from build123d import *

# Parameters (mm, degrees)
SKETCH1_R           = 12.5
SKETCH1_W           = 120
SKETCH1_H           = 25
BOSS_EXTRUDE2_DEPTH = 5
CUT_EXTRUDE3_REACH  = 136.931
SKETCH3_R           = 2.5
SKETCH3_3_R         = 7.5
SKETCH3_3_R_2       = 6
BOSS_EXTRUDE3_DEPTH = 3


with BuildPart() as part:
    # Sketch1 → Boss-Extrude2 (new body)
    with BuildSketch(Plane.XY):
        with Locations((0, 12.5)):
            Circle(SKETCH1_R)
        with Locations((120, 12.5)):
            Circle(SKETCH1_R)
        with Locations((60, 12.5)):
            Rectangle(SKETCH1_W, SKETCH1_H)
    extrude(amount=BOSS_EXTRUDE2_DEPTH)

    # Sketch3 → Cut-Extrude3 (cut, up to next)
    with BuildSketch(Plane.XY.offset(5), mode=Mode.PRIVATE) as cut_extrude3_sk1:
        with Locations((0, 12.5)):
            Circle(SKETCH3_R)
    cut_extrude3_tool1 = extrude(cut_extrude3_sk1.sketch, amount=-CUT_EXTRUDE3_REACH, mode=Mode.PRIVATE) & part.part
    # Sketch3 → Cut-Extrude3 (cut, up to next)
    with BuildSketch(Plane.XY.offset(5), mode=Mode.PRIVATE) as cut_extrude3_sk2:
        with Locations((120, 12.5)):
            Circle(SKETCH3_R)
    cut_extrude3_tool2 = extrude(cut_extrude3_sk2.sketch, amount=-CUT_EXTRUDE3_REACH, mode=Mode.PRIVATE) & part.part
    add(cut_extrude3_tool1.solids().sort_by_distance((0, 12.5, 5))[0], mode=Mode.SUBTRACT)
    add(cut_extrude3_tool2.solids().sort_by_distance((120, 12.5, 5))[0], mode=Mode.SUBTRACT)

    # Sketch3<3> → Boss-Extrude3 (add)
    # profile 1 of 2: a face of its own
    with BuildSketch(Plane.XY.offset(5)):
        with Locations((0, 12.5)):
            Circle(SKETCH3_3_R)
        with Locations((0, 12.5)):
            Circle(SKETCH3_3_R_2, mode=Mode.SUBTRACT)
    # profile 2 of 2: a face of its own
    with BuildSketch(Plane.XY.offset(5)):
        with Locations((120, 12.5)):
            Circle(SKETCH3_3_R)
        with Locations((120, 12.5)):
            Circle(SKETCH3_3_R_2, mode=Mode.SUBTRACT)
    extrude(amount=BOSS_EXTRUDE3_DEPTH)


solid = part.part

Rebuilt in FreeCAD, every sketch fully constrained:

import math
import FreeCAD as App
import Part
import Sketcher

V = App.Vector

doc = App.newDocument("Part")
params = doc.addObject("Spreadsheet::Sheet", "Params")
for row, (alias, value) in enumerate([
    ("sketch1_radius", "12.5 mm"),
    ("sketch1_width", "120 mm"),
    ("pad1_length", "5 mm"),
    ("sketch2_diameter", "5 mm"),
    ("sketch3_diameter", "5 mm"),
    ("sketch4_diameter", "15 mm"),
    ("sketch4_diameter2", "12 mm"),
    ("pad2_length", "3 mm"),
], start=1):
    params.set(f"A{row}", alias)
    params.set(f"B{row}", "=" + value)
    params.setAlias(f"B{row}", alias)

body = doc.addObject("PartDesign::Body", "Body")

# Sketch on XY plane
sketch1 = doc.addObject("Sketcher::SketchObject", "Sketch")
body.addObject(sketch1)
sketch1.AttachmentSupport = (doc.XY_Plane, [""])
sketch1.MapMode = "FlatFace"
sketch1.addGeometry([
    Part.LineSegment(V(0, 0, 0), V(120, 0, 0)),
    Part.ArcOfCircle(Part.Circle(V(120, 12, 0), V(0, 0, 1), 12), math.radians(-90), math.radians(90)),
    Part.LineSegment(V(120, 25, 0), V(0, 25, 0)),
    Part.ArcOfCircle(Part.Circle(V(0, 12, 0), V(0, 0, 1), 12), math.radians(90), math.radians(270)),
], False)
sketch1.addConstraint([
    Sketcher.Constraint("Tangent", 0, 2, 1, 1),
    Sketcher.Constraint("Tangent", 1, 2, 2, 1),
    Sketcher.Constraint("Tangent", 2, 2, 3, 1),
    Sketcher.Constraint("Tangent", 3, 2, 0, 1),
    Sketcher.Constraint("Horizontal", 0),
    Sketcher.Constraint("Horizontal", 2),
    Sketcher.Constraint("Coincident", 3, 2, -1, 1),
    Sketcher.Constraint("Radius", 1, 12.5),
    Sketcher.Constraint("DistanceX", 0, 1, 0, 2, 120.0),
])
sketch1.setExpression("Constraints[7]", "Params.sketch1_radius")
sketch1.setExpression("Constraints[8]", "Params.sketch1_width")
pad1 = doc.addObject("PartDesign::Pad", "Pad")
body.addObject(pad1)
pad1.Profile = sketch1
pad1.setExpression("Length", "Params.pad1_length")

# Sketch on XY plane
sketch2 = doc.addObject("Sketcher::SketchObject", "Sketch001")
body.addObject(sketch2)
sketch2.AttachmentSupport = (doc.XY_Plane, [""])
sketch2.MapMode = "FlatFace"
sketch2.AttachmentOffset = App.Placement(V(0, 0, 5), App.Rotation())
sketch2.addGeometry(Part.Circle(V(0, 12.5, 0), V(0, 0, 1), 2.5), False)
sketch2.addConstraint([
    Sketcher.Constraint("PointOnObject", 0, 3, -2),
    Sketcher.Constraint("Diameter", 0, 5.0),
    Sketcher.Constraint("DistanceY", -1, 1, 0, 3, 12.5),
])
sketch2.setExpression("Constraints[1]", "Params.sketch2_diameter")
pocket1 = doc.addObject("PartDesign::Pocket", "Pocket")
body.addObject(pocket1)
pocket1.Profile = sketch2
pocket1.Type = "UpToFirst"

# Sketch on XY plane
sketch3 = doc.addObject("Sketcher::SketchObject", "Sketch002")
body.addObject(sketch3)
sketch3.AttachmentSupport = (doc.XY_Plane, [""])
sketch3.MapMode = "FlatFace"
sketch3.AttachmentOffset = App.Placement(V(0, 0, 5), App.Rotation())
sketch3.addGeometry(Part.Circle(V(120, 12.5, 0), V(0, 0, 1), 2.5), False)
sketch3.addConstraint([
    Sketcher.Constraint("Diameter", 0, 5.0),
    Sketcher.Constraint("DistanceX", -1, 1, 0, 3, 120.0),
    Sketcher.Constraint("DistanceY", -1, 1, 0, 3, 12.5),
])
sketch3.setExpression("Constraints[0]", "Params.sketch3_diameter")
pocket2 = doc.addObject("PartDesign::Pocket", "Pocket001")
body.addObject(pocket2)
pocket2.Profile = sketch3
pocket2.Type = "UpToFirst"

# Sketch on XY plane
sketch4 = doc.addObject("Sketcher::SketchObject", "Sketch003")
body.addObject(sketch4)
sketch4.AttachmentSupport = (doc.XY_Plane, [""])
sketch4.MapMode = "FlatFace"
sketch4.AttachmentOffset = App.Placement(V(0, 0, 5), App.Rotation())
sketch4.addGeometry([
    Part.Circle(V(0, 12, 0), V(0, 0, 1), 8),
    Part.Circle(V(0, 12, 0), V(0, 0, 1), 6),
    Part.Circle(V(120, 12, 0), V(0, 0, 1), 8),
    Part.Circle(V(120, 12, 0), V(0, 0, 1), 6),
], False)
sketch4.addConstraint([
    Sketcher.Constraint("Coincident", 1, 3, 0, 3),
    Sketcher.Constraint("Coincident", 3, 3, 2, 3),
    Sketcher.Constraint("Equal", 0, 2),
    Sketcher.Constraint("Equal", 1, 3),
    Sketcher.Constraint("PointOnObject", 0, 3, -2),
    Sketcher.Constraint("Horizontal", 1, 3, 2, 3),
    Sketcher.Constraint("Diameter", 0, 15.0),
    Sketcher.Constraint("Diameter", 1, 12.0),
    Sketcher.Constraint("DistanceX", -1, 1, 2, 3, 120.0),
    Sketcher.Constraint("DistanceY", -1, 1, 0, 3, 12.5),
])
sketch4.setExpression("Constraints[6]", "Params.sketch4_diameter")
sketch4.setExpression("Constraints[7]", "Params.sketch4_diameter2")
pad2 = doc.addObject("PartDesign::Pad", "Pad001")
body.addObject(pad2)
pad2.Profile = sketch4
pad2.setExpression("Length", "Params.pad2_length")

doc.recompute()
